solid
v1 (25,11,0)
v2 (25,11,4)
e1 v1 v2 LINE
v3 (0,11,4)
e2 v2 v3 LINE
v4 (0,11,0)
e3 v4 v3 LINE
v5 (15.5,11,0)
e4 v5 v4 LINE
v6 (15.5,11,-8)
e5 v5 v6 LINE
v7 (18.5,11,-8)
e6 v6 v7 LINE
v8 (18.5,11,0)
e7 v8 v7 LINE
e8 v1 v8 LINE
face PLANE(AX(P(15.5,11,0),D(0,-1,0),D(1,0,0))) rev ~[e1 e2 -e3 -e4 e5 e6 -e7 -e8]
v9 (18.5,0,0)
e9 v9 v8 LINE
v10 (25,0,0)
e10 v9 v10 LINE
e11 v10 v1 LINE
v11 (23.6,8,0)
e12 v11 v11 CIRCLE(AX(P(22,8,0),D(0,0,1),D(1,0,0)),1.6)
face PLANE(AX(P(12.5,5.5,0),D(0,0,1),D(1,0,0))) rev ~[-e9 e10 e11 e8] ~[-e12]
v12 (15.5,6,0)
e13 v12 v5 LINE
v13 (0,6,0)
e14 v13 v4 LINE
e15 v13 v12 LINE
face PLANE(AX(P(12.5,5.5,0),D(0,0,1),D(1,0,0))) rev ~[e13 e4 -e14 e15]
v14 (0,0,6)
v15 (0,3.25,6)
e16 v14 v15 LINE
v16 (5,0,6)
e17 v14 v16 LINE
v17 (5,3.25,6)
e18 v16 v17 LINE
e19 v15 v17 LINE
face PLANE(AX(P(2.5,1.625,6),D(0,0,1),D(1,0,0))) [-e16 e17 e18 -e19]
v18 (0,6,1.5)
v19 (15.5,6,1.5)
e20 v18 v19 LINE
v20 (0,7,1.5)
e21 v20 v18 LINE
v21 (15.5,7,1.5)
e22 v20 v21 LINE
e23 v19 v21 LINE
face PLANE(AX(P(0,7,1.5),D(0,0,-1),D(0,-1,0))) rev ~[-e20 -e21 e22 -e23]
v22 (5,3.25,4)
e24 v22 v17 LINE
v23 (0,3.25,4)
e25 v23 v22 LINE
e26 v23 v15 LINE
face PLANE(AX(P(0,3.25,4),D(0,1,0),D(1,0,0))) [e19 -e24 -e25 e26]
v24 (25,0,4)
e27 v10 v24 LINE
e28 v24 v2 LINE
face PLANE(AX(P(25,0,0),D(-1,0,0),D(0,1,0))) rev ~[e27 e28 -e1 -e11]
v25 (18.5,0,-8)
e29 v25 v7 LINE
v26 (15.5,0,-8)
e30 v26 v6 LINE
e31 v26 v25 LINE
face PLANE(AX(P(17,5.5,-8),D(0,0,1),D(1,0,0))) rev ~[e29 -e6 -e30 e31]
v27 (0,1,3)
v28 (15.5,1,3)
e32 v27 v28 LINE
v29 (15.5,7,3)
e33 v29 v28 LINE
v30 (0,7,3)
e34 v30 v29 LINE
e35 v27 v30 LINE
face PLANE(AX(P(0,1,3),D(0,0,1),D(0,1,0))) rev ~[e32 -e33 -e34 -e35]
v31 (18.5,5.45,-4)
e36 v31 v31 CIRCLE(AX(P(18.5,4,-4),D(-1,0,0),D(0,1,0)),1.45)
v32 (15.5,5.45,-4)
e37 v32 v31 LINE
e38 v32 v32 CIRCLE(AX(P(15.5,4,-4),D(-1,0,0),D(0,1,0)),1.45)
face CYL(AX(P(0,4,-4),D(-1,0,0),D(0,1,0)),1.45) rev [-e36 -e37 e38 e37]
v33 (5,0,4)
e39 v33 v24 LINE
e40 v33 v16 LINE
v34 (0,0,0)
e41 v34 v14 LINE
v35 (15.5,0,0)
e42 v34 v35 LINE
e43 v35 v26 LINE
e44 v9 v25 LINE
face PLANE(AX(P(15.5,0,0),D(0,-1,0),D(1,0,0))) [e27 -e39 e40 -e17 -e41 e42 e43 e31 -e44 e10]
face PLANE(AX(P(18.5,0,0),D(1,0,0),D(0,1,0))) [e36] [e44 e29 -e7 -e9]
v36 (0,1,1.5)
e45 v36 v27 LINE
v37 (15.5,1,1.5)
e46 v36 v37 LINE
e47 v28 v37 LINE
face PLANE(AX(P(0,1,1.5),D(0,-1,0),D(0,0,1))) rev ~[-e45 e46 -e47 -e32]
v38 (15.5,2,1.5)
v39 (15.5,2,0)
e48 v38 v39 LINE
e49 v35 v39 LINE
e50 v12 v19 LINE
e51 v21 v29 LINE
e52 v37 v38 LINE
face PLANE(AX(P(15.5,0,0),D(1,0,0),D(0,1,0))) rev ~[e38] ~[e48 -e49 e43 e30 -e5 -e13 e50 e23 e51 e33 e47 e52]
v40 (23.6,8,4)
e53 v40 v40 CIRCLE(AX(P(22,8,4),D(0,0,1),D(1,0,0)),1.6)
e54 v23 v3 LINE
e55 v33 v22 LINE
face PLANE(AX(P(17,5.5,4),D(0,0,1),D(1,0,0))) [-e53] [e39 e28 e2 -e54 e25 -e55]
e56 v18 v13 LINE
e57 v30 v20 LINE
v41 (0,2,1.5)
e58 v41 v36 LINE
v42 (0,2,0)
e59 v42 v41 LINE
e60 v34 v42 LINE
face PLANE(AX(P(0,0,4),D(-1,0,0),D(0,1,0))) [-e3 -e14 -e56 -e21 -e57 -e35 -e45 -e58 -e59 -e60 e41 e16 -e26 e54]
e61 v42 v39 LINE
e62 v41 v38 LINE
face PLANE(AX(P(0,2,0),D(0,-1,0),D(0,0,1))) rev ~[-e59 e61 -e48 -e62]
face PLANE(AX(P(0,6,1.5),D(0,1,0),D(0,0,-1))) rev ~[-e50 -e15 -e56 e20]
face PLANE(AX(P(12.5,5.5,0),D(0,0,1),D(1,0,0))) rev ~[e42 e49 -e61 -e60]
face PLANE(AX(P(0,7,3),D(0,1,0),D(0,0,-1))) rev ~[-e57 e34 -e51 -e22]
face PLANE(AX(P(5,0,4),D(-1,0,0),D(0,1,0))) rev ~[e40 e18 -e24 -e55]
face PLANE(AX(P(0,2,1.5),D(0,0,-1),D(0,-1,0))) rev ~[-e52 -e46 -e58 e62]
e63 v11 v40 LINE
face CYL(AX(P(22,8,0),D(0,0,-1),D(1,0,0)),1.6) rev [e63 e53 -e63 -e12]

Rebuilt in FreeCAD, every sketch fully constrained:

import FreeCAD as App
import Part
import Sketcher


def add_polygon(sketch, points):
    """Adds a closed chain of lines whose ends are joined by coincident constraints."""
    first, n = sketch.GeometryCount, len(points)
    for a, b in zip(points, points[1:] + points[:1]):
        sketch.addGeometry(Part.LineSegment(App.Vector(*a, 0), App.Vector(*b, 0)), False)
    for i in range(n):
        sketch.addConstraint(Sketcher.Constraint("Coincident", first + i, 2, first + (i + 1) % n, 1))

doc = App.newDocument("Part")
params = doc.addObject("Spreadsheet::Sheet", "Params")
for row, (alias, value) in enumerate([
    ("sketch1_diameter", "3.2 mm"),
    ("sketch1_width", "25 mm"),
    ("sketch1_height", "11 mm"),
    ("pad1_length", "4 mm"),
    ("sketch2_width", "6 mm"),
    ("sketch2_width2", "1 mm"),
    ("sketch2_height", "1.5 mm"),
    ("pocket1_length", "18 mm"),
    ("sketch3_width", "5 mm"),
    ("sketch3_height", "3.25 mm"),
    ("pad2_length", "2 mm"),
    ("sketch4_width", "3 mm"),
    ("sketch4_height", "11 mm"),
    ("pad3_length", "4 mm"),
    ("pad3_length2", "8 mm"),
    ("sketch5_diameter", "2.9 mm"),
], start=1):
    params.set(f"A{row}", alias)
    params.set(f"B{row}", "=" + value)
    params.setAlias(f"B{row}", alias)

body = doc.addObject("PartDesign::Body", "Body")

sketch1 = body.newObject("Sketcher::SketchObject", "Sketch")
sketch1.AttachmentSupport = (doc.getObject("XY_Plane"), [""])
sketch1.MapMode = "FlatFace"
add_polygon(sketch1, [(0, 11), (0, 0), (25, 0), (25, 11)])
sketch1.addGeometry(Part.Circle(App.Vector(22, 8, 0), App.Vector(0, 0, 1), 1.6), False)
sketch1.addConstraint([
    Sketcher.Constraint("Vertical", 0),
    Sketcher.Constraint("Horizontal", 1),
    Sketcher.Constraint("Vertical", 2),
    Sketcher.Constraint("Horizontal", 3),
    Sketcher.Constraint("Coincident", 0, 2, -1, 1),
    Sketcher.Constraint("Diameter", 4, 3.2),
    Sketcher.Constraint("DistanceX", 1, 1, 1, 2, 25.0),
    Sketcher.Constraint("DistanceY", 0, 2, 0, 1, 11.0),
    Sketcher.Constraint("DistanceX", -1, 1, 4, 3, 22.0),
    Sketcher.Constraint("DistanceY", -1, 1, 4, 3, 8.0),
])
sketch1.setExpression("Constraints[9]", "Params.sketch1_diameter")
sketch1.setExpression("Constraints[10]", "Params.sketch1_width")
sketch1.setExpression("Constraints[11]", "Params.sketch1_height")
pad1 = body.newObject("PartDesign::Pad", "Pad")
pad1.Profile = sketch1
pad1.setExpression("Length", "Params.pad1_length")

sketch2 = body.newObject("Sketcher::SketchObject", "Sketch001")
sketch2.AttachmentSupport = (doc.getObject("YZ_Plane"), [""])
sketch2.MapMode = "FlatFace"
add_polygon(sketch2, [(7, 3), (1, 3), (1, 1.5), (2, 1.5), (2, 0), (6, 0), (6, 1.5), (7, 1.5)])
sketch2.addConstraint([
    Sketcher.Constraint("Horizontal", 0),
    Sketcher.Constraint("Vertical", 1),
    Sketcher.Constraint("Horizontal", 2),
    Sketcher.Constraint("Vertical", 3),
    Sketcher.Constraint("Horizontal", 4),
    Sketcher.Constraint("Vertical", 5),
    Sketcher.Constraint("Horizontal", 6),
    Sketcher.Constraint("Vertical", 7),
    Sketcher.Constraint("PointOnObject", 3, 2, -1),
    Sketcher.Constraint("Horizontal", 2, 2, 5, 2),
    Sketcher.Constraint("Equal", 2, 6),
    Sketcher.Constraint("Equal", 1, 3),
    Sketcher.Constraint("DistanceX", 0, 2, 0, 1, 6.0),
    Sketcher.Constraint("DistanceX", 2, 1, 2, 2, 1.0),
    Sketcher.Constraint("DistanceY", 1, 2, 1, 1, 1.5),
    Sketcher.Constraint("DistanceX", -1, 1, 0, 2, 1.0),
])
sketch2.setExpression("Constraints[20]", "Params.sketch2_width")
sketch2.setExpression("Constraints[21]", "Params.sketch2_width2")
sketch2.setExpression("Constraints[22]", "Params.sketch2_height")
pocket1 = body.newObject("PartDesign::Pocket", "Pocket")
pocket1.Profile = sketch2
pocket1.setExpression("Length", "Params.pocket1_length")
pocket1.Reversed = True

sketch3 = body.newObject("Sketcher::SketchObject", "Sketch002")
sketch3.AttachmentSupport = (doc.getObject("XY_Plane"), [""])
sketch3.MapMode = "FlatFace"
sketch3.AttachmentOffset = App.Placement(App.Vector(0, 0, 4), App.Rotation())
add_polygon(sketch3, [(0, 3.25), (0, 0), (5, 0), (5, 3.25)])
sketch3.addConstraint([
    Sketcher.Constraint("Vertical", 0),
    Sketcher.Constraint("Horizontal", 1),
    Sketcher.Constraint("Vertical", 2),
    Sketcher.Constraint("Horizontal", 3),
    Sketcher.Constraint("Coincident", 0, 2, -1, 1),
    Sketcher.Constraint("DistanceX", 1, 1, 1, 2, 5.0),
    Sketcher.Constraint("DistanceY", 0, 2, 0, 1, 3.25),
])
sketch3.setExpression("Constraints[9]", "Params.sketch3_width")
sketch3.setExpression("Constraints[10]", "Params.sketch3_height")
pad2 = body.newObject("PartDesign::Pad", "Pad001")
pad2.Profile = sketch3
pad2.setExpression("Length", "Params.pad2_length")

sketch4 = body.newObject("Sketcher::SketchObject", "Sketch003")
sketch4.AttachmentSupport = (doc.getObject("XY_Plane"), [""])
sketch4.MapMode = "FlatFace"
add_polygon(sketch4, [(15.5, 11), (15.5, 0), (18.5, 0), (18.5, 11)])
sketch4.addConstraint([
    Sketcher.Constraint("Vertical", 0),
    Sketcher.Constraint("Horizontal", 1),
    Sketcher.Constraint("Vertical", 2),
    Sketcher.Constraint("Horizontal", 3),
    Sketcher.Constraint("PointOnObject", 0, 2, -1),
    Sketcher.Constraint("DistanceX", 1, 1, 1, 2, 3.0),
    Sketcher.Constraint("DistanceY", 0, 2, 0, 1, 11.0),
    Sketcher.Constraint("DistanceX", -1, 1, 0, 2, 15.5),
])
sketch4.setExpression("Constraints[9]", "Params.sketch4_width")
sketch4.setExpression("Constraints[10]", "Params.sketch4_height")
pad3 = body.newObject("PartDesign::Pad", "Pad002")
pad3.Profile = sketch4
pad3.Type = "TwoLengths"
pad3.setExpression("Length", "Params.pad3_length")
pad3.setExpression("Length2", "Params.pad3_length2")

sketch5 = body.newObject("Sketcher::SketchObject", "Sketch004")
sketch5.AttachmentSupport = (doc.getObject("YZ_Plane"), [""])
sketch5.MapMode = "FlatFace"
sketch5.addGeometry(Part.Circle(App.Vector(4, -4, 0), App.Vector(0, 0, 1), 1.45), False)
sketch5.addConstraint([
    Sketcher.Constraint("Diameter", 0, 2.9),
    Sketcher.Constraint("DistanceX", -1, 1, 0, 3, 4.0),
    Sketcher.Constraint("DistanceY", 0, 3, -1, 1, 4.0),
])
sketch5.setExpression("Constraints[0]", "Params.sketch5_diameter")
pocket2 = body.newObject("PartDesign::Pocket", "Pocket001")
pocket2.Profile = sketch5
pocket2.Type = "ThroughAll"
pocket2.Reversed = True

doc.recompute()
